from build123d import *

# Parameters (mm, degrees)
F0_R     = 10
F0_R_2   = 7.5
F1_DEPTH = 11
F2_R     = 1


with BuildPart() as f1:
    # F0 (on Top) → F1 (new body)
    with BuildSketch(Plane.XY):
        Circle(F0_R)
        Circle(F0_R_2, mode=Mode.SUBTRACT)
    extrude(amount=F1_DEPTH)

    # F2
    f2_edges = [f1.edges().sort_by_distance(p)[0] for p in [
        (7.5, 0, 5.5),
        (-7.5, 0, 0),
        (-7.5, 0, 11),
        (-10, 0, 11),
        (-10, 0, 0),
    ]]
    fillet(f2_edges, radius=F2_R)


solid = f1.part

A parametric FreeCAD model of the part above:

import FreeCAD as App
import Part
import Sketcher

doc = App.newDocument("Part")
body = doc.addObject("PartDesign::Body", "Body")

# Sketch on XY plane
sketch1 = doc.addObject("Sketcher::SketchObject", "Sketch")
body.addObject(sketch1)
sketch1.AttachmentSupport = (doc.XY_Plane, [""])
sketch1.MapMode = "FlatFace"
sketch1.addGeometry(Part.Circle(App.Vector(0, 0, 0), App.Vector(0, 0, 1), 10), False)
sketch1.addGeometry(Part.Circle(App.Vector(0, 0, 0), App.Vector(0, 0, 1), 7.5), False)
sketch1.addConstraint(Sketcher.Constraint("Coincident", 0, 3, -1, 1))
sketch1.addConstraint(Sketcher.Constraint("Coincident", 1, 3, -1, 1))
sketch1.addConstraint(Sketcher.Constraint("Diameter", 0, 20.0))
sketch1.addConstraint(Sketcher.Constraint("Diameter", 1, 15.0))
pad1 = doc.addObject("PartDesign::Pad", "Pad")
body.addObject(pad1)
pad1.Profile = sketch1
pad1.Length = 11
doc.recompute()

fillet = doc.addObject("PartDesign::Fillet", "Fillet")
body.addObject(fillet)
fillet.Base = (pad1, ["Edge1"])
fillet.UseAllEdges = True
fillet.Radius = 1

doc.recompute()
